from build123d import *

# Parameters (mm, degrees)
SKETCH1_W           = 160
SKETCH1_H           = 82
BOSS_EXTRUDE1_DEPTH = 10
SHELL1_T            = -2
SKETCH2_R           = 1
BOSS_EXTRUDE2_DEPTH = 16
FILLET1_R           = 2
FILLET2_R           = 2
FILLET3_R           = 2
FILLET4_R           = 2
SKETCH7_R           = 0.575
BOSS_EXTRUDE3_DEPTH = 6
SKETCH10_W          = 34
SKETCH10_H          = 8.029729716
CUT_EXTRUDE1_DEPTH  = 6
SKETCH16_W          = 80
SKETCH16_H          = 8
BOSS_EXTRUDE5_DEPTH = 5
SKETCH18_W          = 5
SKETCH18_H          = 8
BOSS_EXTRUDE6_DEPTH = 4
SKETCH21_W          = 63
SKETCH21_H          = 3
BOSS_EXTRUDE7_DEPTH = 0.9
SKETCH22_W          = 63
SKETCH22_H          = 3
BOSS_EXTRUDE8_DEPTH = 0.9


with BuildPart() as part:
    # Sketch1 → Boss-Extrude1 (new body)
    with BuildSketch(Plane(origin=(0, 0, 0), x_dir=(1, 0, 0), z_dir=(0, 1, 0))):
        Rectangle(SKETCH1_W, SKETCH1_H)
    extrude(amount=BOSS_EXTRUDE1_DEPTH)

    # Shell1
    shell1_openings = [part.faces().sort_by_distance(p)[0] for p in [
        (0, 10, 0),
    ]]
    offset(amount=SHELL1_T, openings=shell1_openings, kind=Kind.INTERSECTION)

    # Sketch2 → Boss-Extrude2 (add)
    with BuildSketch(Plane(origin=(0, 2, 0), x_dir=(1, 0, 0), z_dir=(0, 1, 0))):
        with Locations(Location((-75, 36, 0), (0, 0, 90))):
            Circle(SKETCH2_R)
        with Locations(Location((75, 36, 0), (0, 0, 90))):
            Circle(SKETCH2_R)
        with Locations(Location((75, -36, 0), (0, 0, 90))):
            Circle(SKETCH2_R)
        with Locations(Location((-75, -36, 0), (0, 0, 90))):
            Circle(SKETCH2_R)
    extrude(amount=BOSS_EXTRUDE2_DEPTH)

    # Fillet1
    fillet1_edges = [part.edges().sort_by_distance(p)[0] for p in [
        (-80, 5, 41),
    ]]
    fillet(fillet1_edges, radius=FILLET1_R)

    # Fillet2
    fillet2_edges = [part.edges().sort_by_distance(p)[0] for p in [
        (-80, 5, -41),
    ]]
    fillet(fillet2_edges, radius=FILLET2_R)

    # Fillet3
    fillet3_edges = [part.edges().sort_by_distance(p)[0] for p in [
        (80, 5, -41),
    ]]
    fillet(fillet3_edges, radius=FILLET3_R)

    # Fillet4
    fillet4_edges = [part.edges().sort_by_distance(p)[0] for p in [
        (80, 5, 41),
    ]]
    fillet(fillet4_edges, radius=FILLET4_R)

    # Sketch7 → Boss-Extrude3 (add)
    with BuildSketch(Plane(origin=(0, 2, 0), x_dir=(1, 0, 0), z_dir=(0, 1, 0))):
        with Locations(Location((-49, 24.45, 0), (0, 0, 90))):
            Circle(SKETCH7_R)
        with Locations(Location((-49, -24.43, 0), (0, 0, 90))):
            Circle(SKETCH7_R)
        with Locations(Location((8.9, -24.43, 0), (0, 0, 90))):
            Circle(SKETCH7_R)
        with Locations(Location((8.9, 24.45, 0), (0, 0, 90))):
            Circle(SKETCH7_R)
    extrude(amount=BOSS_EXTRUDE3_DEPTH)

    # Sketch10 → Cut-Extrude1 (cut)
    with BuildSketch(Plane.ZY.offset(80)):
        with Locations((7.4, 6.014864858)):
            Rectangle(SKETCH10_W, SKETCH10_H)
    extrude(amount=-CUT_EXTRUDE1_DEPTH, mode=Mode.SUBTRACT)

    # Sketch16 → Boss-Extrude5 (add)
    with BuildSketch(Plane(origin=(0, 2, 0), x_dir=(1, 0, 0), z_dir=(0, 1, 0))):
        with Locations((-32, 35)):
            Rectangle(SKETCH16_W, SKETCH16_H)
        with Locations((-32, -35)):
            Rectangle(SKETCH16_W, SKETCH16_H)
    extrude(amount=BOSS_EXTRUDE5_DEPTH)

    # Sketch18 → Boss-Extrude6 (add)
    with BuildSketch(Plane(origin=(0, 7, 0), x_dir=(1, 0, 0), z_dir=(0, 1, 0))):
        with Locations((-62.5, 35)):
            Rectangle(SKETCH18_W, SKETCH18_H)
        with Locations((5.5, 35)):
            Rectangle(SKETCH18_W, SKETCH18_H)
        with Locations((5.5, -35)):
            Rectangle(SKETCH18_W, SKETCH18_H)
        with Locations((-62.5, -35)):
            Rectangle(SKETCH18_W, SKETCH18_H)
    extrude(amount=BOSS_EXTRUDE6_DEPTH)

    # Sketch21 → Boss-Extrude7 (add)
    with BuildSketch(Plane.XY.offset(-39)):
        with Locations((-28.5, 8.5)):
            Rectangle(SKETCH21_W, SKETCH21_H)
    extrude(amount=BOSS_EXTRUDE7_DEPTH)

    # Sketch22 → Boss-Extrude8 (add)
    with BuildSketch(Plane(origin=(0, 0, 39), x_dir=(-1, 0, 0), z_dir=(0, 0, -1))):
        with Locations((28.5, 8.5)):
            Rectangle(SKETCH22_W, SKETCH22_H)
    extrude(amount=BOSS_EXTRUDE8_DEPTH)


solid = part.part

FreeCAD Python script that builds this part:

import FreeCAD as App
import Part
import Sketcher

V = App.Vector
Q = App.Units.Quantity


def edges_at(feature, points):
    """Names of the edges that pass closest to the given points."""
    edges = feature.Shape.Edges
    near = lambda p: min(range(len(edges)), key=lambda i: edges[i].distToShape(Part.Vertex(*p))[0])
    return sorted({f"Edge{near(p) + 1}" for p in points})


def faces_at(feature, points):
    """Names of the faces that lie closest to the given points."""
    faces = feature.Shape.Faces
    near = lambda p: min(range(len(faces)), key=lambda i: faces[i].distToShape(Part.Vertex(*p))[0])
    return sorted({f"Face{near(p) + 1}" for p in points})

doc = App.newDocument("Part")
params = doc.addObject("Spreadsheet::Sheet", "Params")
for row, (alias, value) in enumerate([
    ("sketch1_width", "160 mm"),
    ("sketch1_height", "82 mm"),
    ("pad1_length", "10 mm"),
    ("thickness_wall", "2 mm"),
    ("sketch2_diameter", "2 mm"),
    ("pad2_length", "16 mm"),
    ("fillet_radius", "2 mm"),
    ("fillet2_radius", "2 mm"),
    ("fillet3_radius", "2 mm"),
    ("fillet4_radius", "2 mm"),
    ("sketch3_diameter", "1.15 mm"),
    ("pad3_length", "6 mm"),
    ("sketch4_height", "34 mm"),
    ("pocket1_length", "6 mm"),
    ("sketch5_width", "80 mm"),
    ("sketch5_height", "8 mm"),
    ("pad4_length", "5 mm"),
    ("sketch6_width", "5 mm"),
    ("sketch6_height", "8 mm"),
    ("pad5_length", "4 mm"),
    ("sketch7_width", "63 mm"),
    ("sketch7_height", "3 mm"),
    ("pad6_length", "0.9 mm"),
    ("sketch8_width", "63 mm"),
    ("sketch8_height", "3 mm"),
    ("pad7_length", "0.9 mm"),
], start=1):
    params.set(f"A{row}", alias)
    params.set(f"B{row}", "=" + value)
    params.setAlias(f"B{row}", alias)

body = doc.addObject("PartDesign::Body", "Body")

sketch1 = body.newObject("Sketcher::SketchObject", "Sketch")
sketch1.AttachmentSupport = (doc.getObject("XZ_Plane"), [""])
sketch1.MapMode = "FlatFace"
sketch1.addGeometry([
    Part.LineSegment(V(-80, -41, 0), V(-80, 41, 0)),
    Part.LineSegment(V(-80, 41, 0), V(80, 41, 0)),
    Part.LineSegment(V(80, 41, 0), V(80, -41, 0)),
    Part.LineSegment(V(80, -41, 0), V(-80, -41, 0)),
], False)
sketch1.addConstraint([
    Sketcher.Constraint("Coincident", 0, 2, 1, 1),
    Sketcher.Constraint("Coincident", 1, 2, 2, 1),
    Sketcher.Constraint("Coincident", 2, 2, 3, 1),
    Sketcher.Constraint("Coincident", 3, 2, 0, 1),
    Sketcher.Constraint("Vertical", 0),
    Sketcher.Constraint("Horizontal", 1),
    Sketcher.Constraint("Vertical", 2),
    Sketcher.Constraint("Horizontal", 3),
    Sketcher.Constraint("Symmetric", 0, 2, 2, 2, -1, 1),
    Sketcher.Constraint("DistanceX", 1, 1, 1, 2, Q("160 mm")),
    Sketcher.Constraint("DistanceY", 0, 1, 0, 2, Q("82 mm")),
])
sketch1.setExpression("Constraints[9]", "Params.sketch1_width")
sketch1.setExpression("Constraints[10]", "Params.sketch1_height")
pad1 = body.newObject("PartDesign::Pad", "Pad")
pad1.Profile = sketch1
pad1.setExpression("Length", "Params.pad1_length")
pad1.Reversed = True
doc.recompute()

thickness = body.newObject("PartDesign::Thickness", "Thickness")
thickness.Base = (pad1, faces_at(pad1, [(0, 10, 0)]))
thickness.setExpression("Value", "Params.thickness_wall")
thickness.Reversed = True
thickness.Join = "Intersection"

sketch2 = body.newObject("Sketcher::SketchObject", "Sketch001")
sketch2.AttachmentSupport = (doc.getObject("XZ_Plane"), [""])
sketch2.MapMode = "FlatFace"
sketch2.AttachmentOffset = App.Placement(V(0, 0, -2), App.Rotation())
sketch2.addGeometry([
    Part.Circle(V(-75, -36, 0), V(0, 0, 1), 1),
    Part.Circle(V(75, -36, 0), V(0, 0, 1), 1),
    Part.Circle(V(75, 36, 0), V(0, 0, 1), 1),
    Part.Circle(V(-75, 36, 0), V(0, 0, 1), 1),
], False)
sketch2.addConstraint([
    Sketcher.Constraint("Equal", 0, 1),
    Sketcher.Constraint("Equal", 1, 2),
    Sketcher.Constraint("Equal", 2, 3),
    Sketcher.Constraint("Symmetric", 0, 3, 2, 3, -1, 1),
    Sketcher.Constraint("Symmetric", 1, 3, 3, 3, -1, 1),
    Sketcher.Constraint("Symmetric", 0, 3, 1, 3, -2),
    Sketcher.Constraint("Diameter", 0, Q("2 mm")),
    Sketcher.Constraint("DistanceX", 0, 3, -1, 1, Q("75 mm")),
    Sketcher.Constraint("DistanceY", 0, 3, -1, 1, Q("36 mm")),
])
sketch2.setExpression("Constraints[6]", "Params.sketch2_diameter")
pad2 = body.newObject("PartDesign::Pad", "Pad001")
pad2.Profile = sketch2
pad2.setExpression("Length", "Params.pad2_length")
pad2.Reversed = True
doc.recompute()

fillet = body.newObject("PartDesign::Fillet", "Fillet")
fillet.Base = (pad2, edges_at(pad2, [(-80, 5, 41)]))
fillet.setExpression("Radius", "Params.fillet_radius")
doc.recompute()

fillet2 = body.newObject("PartDesign::Fillet", "Fillet001")
fillet2.Base = (fillet, edges_at(fillet, [(-80, 5, -41)]))
fillet2.setExpression("Radius", "Params.fillet2_radius")
doc.recompute()

fillet3 = body.newObject("PartDesign::Fillet", "Fillet002")
fillet3.Base = (fillet2, edges_at(fillet2, [(80, 5, -41)]))
fillet3.setExpression("Radius", "Params.fillet3_radius")
doc.recompute()

fillet4 = body.newObject("PartDesign::Fillet", "Fillet003")
fillet4.Base = (fillet3, edges_at(fillet3, [(80, 5, 41)]))
fillet4.setExpression("Radius", "Params.fillet4_radius")

sketch3 = body.newObject("Sketcher::SketchObject", "Sketch002")
sketch3.AttachmentSupport = (doc.getObject("XZ_Plane"), [""])
sketch3.MapMode = "FlatFace"
sketch3.AttachmentOffset = App.Placement(V(0, 0, -2), App.Rotation())
sketch3.addGeometry([
    Part.Circle(V(-49, -24.45, 0), V(0, 0, 1), 0.575),
    Part.Circle(V(-49, 24.43, 0), V(0, 0, 1), 0.575),
    Part.Circle(V(8.9, 24.43, 0), V(0, 0, 1), 0.575),
    Part.Circle(V(8.9, -24.45, 0), V(0, 0, 1), 0.575),
], False)
sketch3.addConstraint([
    Sketcher.Constraint("Equal", 0, 1),
    Sketcher.Constraint("Equal", 1, 2),
    Sketcher.Constraint("Equal", 2, 3),
    Sketcher.Constraint("Horizontal", 1, 3, 2, 3),
    Sketcher.Constraint("Horizontal", 0, 3, 3, 3),
    Sketcher.Constraint("Vertical", 0, 3, 1, 3),
    Sketcher.Constraint("Vertical", 2, 3, 3, 3),
    Sketcher.Constraint("Diameter", 0, Q("1.15 mm")),
    Sketcher.Constraint("DistanceX", 0, 3, -1, 1, Q("49 mm")),
    Sketcher.Constraint("DistanceX", -1, 1, 2, 3, Q("8.9 mm")),
    Sketcher.Constraint("DistanceY", 0, 3, -1, 1, Q("24.45 mm")),
    Sketcher.Constraint("DistanceY", -1, 1, 1, 3, Q("24.43 mm")),
])
sketch3.setExpression("Constraints[7]", "Params.sketch3_diameter")
pad3 = body.newObject("PartDesign::Pad", "Pad002")
pad3.Profile = sketch3
pad3.setExpression("Length", "Params.pad3_length")
pad3.Reversed = True

sketch4 = body.newObject("Sketcher::SketchObject", "Sketch003")
sketch4.AttachmentSupport = (doc.getObject("YZ_Plane"), [""])
sketch4.MapMode = "FlatFace"
sketch4.AttachmentOffset = App.Placement(V(0, 0, -80), App.Rotation())
sketch4.addGeometry([
    Part.LineSegment(V(10.02973, -9.6, 0), V(2, -9.6, 0)),
    Part.LineSegment(V(2, -9.6, 0), V(2, 24.4, 0)),
    Part.LineSegment(V(2, 24.4, 0), V(10.02973, 24.4, 0)),
    Part.LineSegment(V(10.02973, 24.4, 0), V(10.02973, -9.6, 0)),
], False)
sketch4.addConstraint([
    Sketcher.Constraint("Coincident", 0, 2, 1, 1),
    Sketcher.Constraint("Coincident", 1, 2, 2, 1),
    Sketcher.Constraint("Coincident", 2, 2, 3, 1),
    Sketcher.Constraint("Coincident", 3, 2, 0, 1),
    Sketcher.Constraint("Horizontal", 0),
    Sketcher.Constraint("Vertical", 1),
    Sketcher.Constraint("Horizontal", 2),
    Sketcher.Constraint("Vertical", 3),
    Sketcher.Constraint("DistanceY", 1, 1, 1, 2, Q("34 mm")),
    Sketcher.Constraint("DistanceX", -1, 1, 0, 2, Q("2 mm")),
    Sketcher.Constraint("DistanceY", 0, 2, -1, 1, Q("9.6 mm")),
    Sketcher.Constraint("DistanceX", 0, 2, 0, 1, Q("8.02973 mm")),
])
sketch4.setExpression("Constraints[8]", "Params.sketch4_height")
pocket1 = body.newObject("PartDesign::Pocket", "Pocket")
pocket1.Profile = sketch4
pocket1.setExpression("Length", "Params.pocket1_length")
pocket1.Reversed = True

sketch5 = body.newObject("Sketcher::SketchObject", "Sketch004")
sketch5.AttachmentSupport = (doc.getObject("XZ_Plane"), [""])
sketch5.MapMode = "FlatFace"
sketch5.AttachmentOffset = App.Placement(V(0, 0, -2), App.Rotation())
sketch5.addGeometry([
    Part.LineSegment(V(-72, -39, 0), V(-72, -31, 0)),
    Part.LineSegment(V(-72, -31, 0), V(8, -31, 0)),
    Part.LineSegment(V(8, -31, 0), V(8, -39, 0)),
    Part.LineSegment(V(8, -39, 0), V(-72, -39, 0)),
    Part.LineSegment(V(-72, 31, 0), V(-72, 39, 0)),
    Part.LineSegment(V(-72, 39, 0), V(8, 39, 0)),
    Part.LineSegment(V(8, 39, 0), V(8, 31, 0)),
    Part.LineSegment(V(8, 31, 0), V(-72, 31, 0)),
], False)
sketch5.addConstraint([
    Sketcher.Constraint("Coincident", 0, 2, 1, 1),
    Sketcher.Constraint("Coincident", 1, 2, 2, 1),
    Sketcher.Constraint("Coincident", 2, 2, 3, 1),
    Sketcher.Constraint("Coincident", 3, 2, 0, 1),
    Sketcher.Constraint("Coincident", 4, 2, 5, 1),
    Sketcher.Constraint("Coincident", 5, 2, 6, 1),
    Sketcher.Constraint("Coincident", 6, 2, 7, 1),
    Sketcher.Constraint("Coincident", 7, 2, 4, 1),
    Sketcher.Constraint("Vertical", 0),
    Sketcher.Constraint("Horizontal", 1),
    Sketcher.Constraint("Vertical", 2),
    Sketcher.Constraint("Horizontal", 3),
    Sketcher.Constraint("Vertical", 4),
    Sketcher.Constraint("Horizontal", 5),
    Sketcher.Constraint("Vertical", 6),
    Sketcher.Constraint("Horizontal", 7),
    Sketcher.Constraint("Symmetric", 3, 2, 4, 2, -1),
    Sketcher.Constraint("Symmetric", 1, 2, 6, 2, -1),
    Sketcher.Constraint("DistanceX", 1, 1, 1, 2, Q("80 mm")),
    Sketcher.Constraint("DistanceY", 0, 1, 0, 2, Q("8 mm")),
    Sketcher.Constraint("DistanceX", 0, 2, -1, 1, Q("72 mm")),
    Sketcher.Constraint("DistanceY", 0, 2, -1, 1, Q("31 mm")),
])
sketch5.setExpression("Constraints[18]", "Params.sketch5_width")
sketch5.setExpression("Constraints[19]", "Params.sketch5_height")
pad4 = body.newObject("PartDesign::Pad", "Pad003")
pad4.Profile = sketch5
pad4.setExpression("Length", "Params.pad4_length")
pad4.Reversed = True

sketch6 = body.newObject("Sketcher::SketchObject", "Sketch005")
sketch6.AttachmentSupport = (doc.getObject("XZ_Plane"), [""])
sketch6.MapMode = "FlatFace"
sketch6.AttachmentOffset = App.Placement(V(0, 0, -7), App.Rotation())
sketch6.addGeometry([
    Part.LineSegment(V(-65, -39, 0), V(-65, -31, 0)),
    Part.LineSegment(V(-65, -31, 0), V(-60, -31, 0)),
    Part.LineSegment(V(-60, -31, 0), V(-60, -39, 0)),
    Part.LineSegment(V(-60, -39, 0), V(-65, -39, 0)),
    Part.LineSegment(V(3, -39, 0), V(3, -31, 0)),
    Part.LineSegment(V(3, -31, 0), V(8, -31, 0)),
    Part.LineSegment(V(8, -31, 0), V(8, -39, 0)),
    Part.LineSegment(V(8, -39, 0), V(3, -39, 0)),
    Part.LineSegment(V(3, 31, 0), V(3, 39, 0)),
    Part.LineSegment(V(3, 39, 0), V(8, 39, 0)),
    Part.LineSegment(V(8, 39, 0), V(8, 31, 0)),
    Part.LineSegment(V(8, 31, 0), V(3, 31, 0)),
    Part.LineSegment(V(-65, 31, 0), V(-65, 39, 0)),
    Part.LineSegment(V(-65, 39, 0), V(-60, 39, 0)),
    Part.LineSegment(V(-60, 39, 0), V(-60, 31, 0)),
    Part.LineSegment(V(-60, 31, 0), V(-65, 31, 0)),
], False)
sketch6.addConstraint([
    Sketcher.Constraint("Coincident", 0, 2, 1, 1),
    Sketcher.Constraint("Coincident", 1, 2, 2, 1),
    Sketcher.Constraint("Coincident", 2, 2, 3, 1),
    Sketcher.Constraint("Coincident", 3, 2, 0, 1),
    Sketcher.Constraint("Coincident", 4, 2, 5, 1),
    Sketcher.Constraint("Coincident", 5, 2, 6, 1),
    Sketcher.Constraint("Coincident", 6, 2, 7, 1),
    Sketcher.Constraint("Coincident", 7, 2, 4, 1),
    Sketcher.Constraint("Coincident", 8, 2, 9, 1),
    Sketcher.Constraint("Coincident", 9, 2, 10, 1),
    Sketcher.Constraint("Coincident", 10, 2, 11, 1),
    Sketcher.Constraint("Coincident", 11, 2, 8, 1),
    Sketcher.Constraint("Coincident", 12, 2, 13, 1),
    Sketcher.Constraint("Coincident", 13, 2, 14, 1),
    Sketcher.Constraint("Coincident", 14, 2, 15, 1),
    Sketcher.Constraint("Coincident", 15, 2, 12, 1),
    Sketcher.Constraint("Vertical", 0),
    Sketcher.Constraint("Horizontal", 1),
    Sketcher.Constraint("Vertical", 2),
    Sketcher.Constraint("Horizontal", 3),
    Sketcher.Constraint("Vertical", 4),
    Sketcher.Constraint("Horizontal", 5),
    Sketcher.Constraint("Vertical", 6),
    Sketcher.Constraint("Horizontal", 7),
    Sketcher.Constraint("Vertical", 8),
    Sketcher.Constraint("Horizontal", 9),
    Sketcher.Constraint("Vertical", 10),
    Sketcher.Constraint("Horizontal", 11),
    Sketcher.Constraint("Vertical", 12),
    Sketcher.Constraint("Horizontal", 13),
    Sketcher.Constraint("Vertical", 14),
    Sketcher.Constraint("Horizontal", 15),
    Sketcher.Constraint("Symmetric", 7, 2, 8, 2, -1),
    Sketcher.Constraint("Symmetric", 5, 2, 10, 2, -1),
    Sketcher.Constraint("Symmetric", 3, 2, 12, 2, -1),
    Sketcher.Constraint("Symmetric", 1, 2, 14, 2, -1),
    Sketcher.Constraint("Horizontal", 1, 2, 4, 2),
    Sketcher.Constraint("Horizontal", 3, 2, 6, 2),
    Sketcher.Constraint("Equal", 3, 5),
    Sketcher.Constraint("DistanceX", 1, 1, 1, 2, Q("5 mm")),
    Sketcher.Constraint("DistanceY", 0, 1, 0, 2, Q("8 mm")),
    Sketcher.Constraint("DistanceX", 0, 2, -1, 1, Q("65 mm")),
    Sketcher.Constraint("DistanceY", 0, 2, -1, 1, Q("31 mm")),
    Sketcher.Constraint("DistanceX", -1, 1, 4, 2, Q("3 mm")),
])
sketch6.setExpression("Constraints[39]", "Params.sketch6_width")
sketch6.setExpression("Constraints[40]", "Params.sketch6_height")
pad5 = body.newObject("PartDesign::Pad", "Pad004")
pad5.Profile = sketch6
pad5.setExpression("Length", "Params.pad5_length")
pad5.Reversed = True

sketch7 = body.newObject("Sketcher::SketchObject", "Sketch006")
sketch7.AttachmentSupport = (doc.getObject("XY_Plane"), [""])
sketch7.MapMode = "FlatFace"
sketch7.AttachmentOffset = App.Placement(V(0, 0, -39), App.Rotation())
sketch7.addGeometry([
    Part.LineSegment(V(-60, 10, 0), V(-60, 7, 0)),
    Part.LineSegment(V(-60, 7, 0), V(3, 7, 0)),
    Part.LineSegment(V(3, 7, 0), V(3, 10, 0)),
    Part.LineSegment(V(3, 10, 0), V(-60, 10, 0)),
], False)
sketch7.addConstraint([
    Sketcher.Constraint("Coincident", 0, 2, 1, 1),
    Sketcher.Constraint("Coincident", 1, 2, 2, 1),
    Sketcher.Constraint("Coincident", 2, 2, 3, 1),
    Sketcher.Constraint("Coincident", 3, 2, 0, 1),
    Sketcher.Constraint("Vertical", 0),
    Sketcher.Constraint("Horizontal", 1),
    Sketcher.Constraint("Vertical", 2),
    Sketcher.Constraint("Horizontal", 3),
    Sketcher.Constraint("DistanceX", 1, 1, 1, 2, Q("63 mm")),
    Sketcher.Constraint("DistanceY", 0, 2, 0, 1, Q("3 mm")),
    Sketcher.Constraint("DistanceX", 0, 2, -1, 1, Q("60 mm")),
    Sketcher.Constraint("DistanceY", -1, 1, 0, 2, Q("7 mm")),
])
sketch7.setExpression("Constraints[8]", "Params.sketch7_width")
sketch7.setExpression("Constraints[9]", "Params.sketch7_height")
pad6 = body.newObject("PartDesign::Pad", "Pad005")
pad6.Profile = sketch7
pad6.setExpression("Length", "Params.pad6_length")

sketch8 = body.newObject("Sketcher::SketchObject", "Sketch007")
sketch8.AttachmentSupport = (doc.getObject("XY_Plane"), [""])
sketch8.MapMode = "FlatFace"
sketch8.AttachmentOffset = App.Placement(V(0, 0, 39), App.Rotation())
sketch8.addGeometry([
    Part.LineSegment(V(3, 10, 0), V(3, 7, 0)),
    Part.LineSegment(V(3, 7, 0), V(-60, 7, 0)),
    Part.LineSegment(V(-60, 7, 0), V(-60, 10, 0)),
    Part.LineSegment(V(-60, 10, 0), V(3, 10, 0)),
], False)
sketch8.addConstraint([
    Sketcher.Constraint("Coincident", 0, 2, 1, 1),
    Sketcher.Constraint("Coincident", 1, 2, 2, 1),
    Sketcher.Constraint("Coincident", 2, 2, 3, 1),
    Sketcher.Constraint("Coincident", 3, 2, 0, 1),
    Sketcher.Constraint("Vertical", 0),
    Sketcher.Constraint("Horizontal", 1),
    Sketcher.Constraint("Vertical", 2),
    Sketcher.Constraint("Horizontal", 3),
    Sketcher.Constraint("DistanceX", 1, 2, 1, 1, Q("63 mm")),
    Sketcher.Constraint("DistanceY", 0, 2, 0, 1, Q("3 mm")),
    Sketcher.Constraint("DistanceX", -1, 1, 0, 2, Q("3 mm")),
    Sketcher.Constraint("DistanceY", -1, 1, 0, 2, Q("7 mm")),
])
sketch8.setExpression("Constraints[8]", "Params.sketch8_width")
sketch8.setExpression("Constraints[9]", "Params.sketch8_height")
pad7 = body.newObject("PartDesign::Pad", "Pad006")
pad7.Profile = sketch8
pad7.setExpression("Length", "Params.pad7_length")
pad7.Reversed = True

doc.recompute()
